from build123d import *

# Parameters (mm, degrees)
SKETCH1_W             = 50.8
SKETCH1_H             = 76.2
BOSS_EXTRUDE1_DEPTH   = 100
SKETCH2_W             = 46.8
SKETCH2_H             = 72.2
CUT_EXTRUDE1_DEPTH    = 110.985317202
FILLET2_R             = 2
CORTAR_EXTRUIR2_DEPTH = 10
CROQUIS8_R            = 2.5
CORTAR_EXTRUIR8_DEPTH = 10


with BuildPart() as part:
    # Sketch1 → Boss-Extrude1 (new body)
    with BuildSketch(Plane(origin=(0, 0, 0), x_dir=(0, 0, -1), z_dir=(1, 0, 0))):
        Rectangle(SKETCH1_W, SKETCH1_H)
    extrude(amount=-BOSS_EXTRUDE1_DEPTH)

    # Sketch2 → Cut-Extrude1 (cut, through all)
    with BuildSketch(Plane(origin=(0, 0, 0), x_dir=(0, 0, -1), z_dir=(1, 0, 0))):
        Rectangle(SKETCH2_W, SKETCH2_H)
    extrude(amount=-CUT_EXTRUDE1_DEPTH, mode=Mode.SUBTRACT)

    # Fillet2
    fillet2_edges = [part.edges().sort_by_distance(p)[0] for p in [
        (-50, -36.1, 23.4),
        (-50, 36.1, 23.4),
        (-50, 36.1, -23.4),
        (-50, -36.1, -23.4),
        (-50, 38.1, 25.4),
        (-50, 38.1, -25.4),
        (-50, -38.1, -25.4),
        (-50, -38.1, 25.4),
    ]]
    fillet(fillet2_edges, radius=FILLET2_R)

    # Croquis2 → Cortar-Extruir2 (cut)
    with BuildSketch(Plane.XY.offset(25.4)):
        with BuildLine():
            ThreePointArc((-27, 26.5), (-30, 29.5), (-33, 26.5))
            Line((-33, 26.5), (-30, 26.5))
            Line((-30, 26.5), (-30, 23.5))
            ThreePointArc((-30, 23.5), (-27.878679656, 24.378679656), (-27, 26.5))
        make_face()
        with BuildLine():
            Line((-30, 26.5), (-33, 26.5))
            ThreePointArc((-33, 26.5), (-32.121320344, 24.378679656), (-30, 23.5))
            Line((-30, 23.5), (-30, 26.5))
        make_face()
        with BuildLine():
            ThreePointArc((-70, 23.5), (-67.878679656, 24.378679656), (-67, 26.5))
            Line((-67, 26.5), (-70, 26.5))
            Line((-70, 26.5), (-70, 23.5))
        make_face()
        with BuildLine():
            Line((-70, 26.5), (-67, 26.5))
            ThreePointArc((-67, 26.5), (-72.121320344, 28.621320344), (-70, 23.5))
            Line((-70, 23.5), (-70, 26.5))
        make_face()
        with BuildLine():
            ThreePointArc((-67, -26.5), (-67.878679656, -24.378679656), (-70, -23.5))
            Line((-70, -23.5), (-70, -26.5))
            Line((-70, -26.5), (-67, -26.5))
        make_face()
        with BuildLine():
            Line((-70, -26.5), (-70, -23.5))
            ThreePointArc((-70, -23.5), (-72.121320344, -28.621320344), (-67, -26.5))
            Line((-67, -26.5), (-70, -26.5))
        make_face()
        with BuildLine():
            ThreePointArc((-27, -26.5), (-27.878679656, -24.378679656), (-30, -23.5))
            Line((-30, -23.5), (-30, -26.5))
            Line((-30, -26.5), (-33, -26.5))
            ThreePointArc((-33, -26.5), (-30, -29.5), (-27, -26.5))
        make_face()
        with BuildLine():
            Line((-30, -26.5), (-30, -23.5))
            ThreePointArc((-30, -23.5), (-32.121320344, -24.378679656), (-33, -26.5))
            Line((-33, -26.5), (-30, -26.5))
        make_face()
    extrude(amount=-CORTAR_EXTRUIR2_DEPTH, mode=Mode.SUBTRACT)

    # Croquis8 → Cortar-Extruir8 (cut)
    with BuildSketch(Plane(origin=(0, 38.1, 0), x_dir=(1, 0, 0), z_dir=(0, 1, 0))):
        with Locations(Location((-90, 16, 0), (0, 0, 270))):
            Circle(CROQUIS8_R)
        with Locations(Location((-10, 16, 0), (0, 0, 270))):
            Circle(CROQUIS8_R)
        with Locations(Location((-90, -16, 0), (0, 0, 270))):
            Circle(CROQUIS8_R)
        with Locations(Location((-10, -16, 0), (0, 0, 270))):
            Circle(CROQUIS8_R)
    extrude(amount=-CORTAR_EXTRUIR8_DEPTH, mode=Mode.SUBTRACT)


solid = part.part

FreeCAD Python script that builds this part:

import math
import FreeCAD as App
import Part
import Sketcher

V = App.Vector
Q = App.Units.Quantity


def edges_at(feature, points):
    """Names of the edges that pass closest to the given points."""
    edges = feature.Shape.Edges
    near = lambda p: min(range(len(edges)), key=lambda i: edges[i].distToShape(Part.Vertex(*p))[0])
    return sorted({f"Edge{near(p) + 1}" for p in points})


def add_polygon(sketch, points):
    """Adds a closed chain of lines whose ends are joined by coincident constraints."""
    first, n = sketch.GeometryCount, len(points)
    for a, b in zip(points, points[1:] + points[:1]):
        sketch.addGeometry(Part.LineSegment(App.Vector(*a, 0), App.Vector(*b, 0)), False)
    for i in range(n):
        sketch.addConstraint(Sketcher.Constraint("Coincident", first + i, 2, first + (i + 1) % n, 1))

doc = App.newDocument("Part")
body = doc.addObject("PartDesign::Body", "Body")

# Sketch on YZ plane
sketch1 = body.newObject("Sketcher::SketchObject", "Sketch")
sketch1.AttachmentSupport = (doc.getObject("YZ_Plane"), [""])
sketch1.MapMode = "FlatFace"
add_polygon(sketch1, [(38.1, 25.4), (-38.1, 25.4), (-38.1, -25.4), (38.1, -25.4)])  # lines 0-3
sketch1.addConstraint([
    Sketcher.Constraint("Horizontal", 0),
    Sketcher.Constraint("Vertical", 1),
    Sketcher.Constraint("Horizontal", 2),
    Sketcher.Constraint("Vertical", 3),
    Sketcher.Constraint("Symmetric", 0, 2, 2, 2, -1, 1),
    Sketcher.Constraint("DistanceX", 0, 2, 0, 1, Q("76.2 mm")),
    Sketcher.Constraint("DistanceY", 1, 2, 1, 1, Q("50.8 mm")),
])
pad1 = body.newObject("PartDesign::Pad", "Pad")
pad1.Profile = sketch1
pad1.Length = 100
pad1.Reversed = True

# Sketch on YZ plane
sketch2 = body.newObject("Sketcher::SketchObject", "Sketch001")
sketch2.AttachmentSupport = (doc.getObject("YZ_Plane"), [""])
sketch2.MapMode = "FlatFace"
add_polygon(sketch2, [(36.1, 23.4), (-36.1, 23.4), (-36.1, -23.4), (36.1, -23.4)])  # lines 0-3
sketch2.addConstraint([
    Sketcher.Constraint("Horizontal", 0),
    Sketcher.Constraint("Vertical", 1),
    Sketcher.Constraint("Horizontal", 2),
    Sketcher.Constraint("Vertical", 3),
    Sketcher.Constraint("Symmetric", 0, 2, 2, 2, -1, 1),
    Sketcher.Constraint("DistanceX", 0, 2, 0, 1, Q("72.2 mm")),
    Sketcher.Constraint("DistanceY", 1, 2, 1, 1, Q("46.8 mm")),
])
pocket1 = body.newObject("PartDesign::Pocket", "Pocket")
pocket1.Profile = sketch2
pocket1.Type = "ThroughAll"
doc.recompute()

fillet = body.newObject("PartDesign::Fillet", "Fillet")
fillet.Base = (pocket1, edges_at(pocket1, [
    (-50, -36.1, 23.4),
    (-50, 36.1, 23.4),
    (-50, 36.1, -23.4),
    (-50, -36.1, -23.4),
    (-50, 38.1, 25.4),
    (-50, 38.1, -25.4),
    (-50, -38.1, -25.4),
    (-50, -38.1, 25.4),
]))
fillet.Radius = 2

# Sketch on XY plane
sketch3 = body.newObject("Sketcher::SketchObject", "Sketch002")
sketch3.AttachmentSupport = (doc.getObject("XY_Plane"), [""])
sketch3.MapMode = "FlatFace"
sketch3.AttachmentOffset = App.Placement(V(0, 0, 25.4), App.Rotation())
sketch3.addGeometry([
    Part.ArcOfCircle(Part.Circle(V(-30, 26.5, 0), V(0, 0, 1), 3), math.radians(0), math.radians(180)),  # 0
    Part.ArcOfCircle(Part.Circle(V(-30, 26.5, 0), V(0, 0, 1), 3), math.radians(180), math.radians(270)),  # 1
    Part.ArcOfCircle(Part.Circle(V(-30, 26.5, 0), V(0, 0, 1), 3), math.radians(-90), math.radians(0)),  # 2
    Part.ArcOfCircle(Part.Circle(V(-70, 26.5, 0), V(0, 0, 1), 3), math.radians(-90), math.radians(0)),  # 3
    Part.ArcOfCircle(Part.Circle(V(-70, 26.5, 0), V(0, 0, 1), 3), math.radians(0), math.radians(270)),  # 4
    Part.ArcOfCircle(Part.Circle(V(-70, -26.5, 0), V(0, 0, 1), 3), math.radians(0), math.radians(90)),  # 5
    Part.ArcOfCircle(Part.Circle(V(-70, -26.5, 0), V(0, 0, 1), 3), math.radians(90), math.radians(360)),  # 6
    Part.ArcOfCircle(Part.Circle(V(-30, -26.5, 0), V(0, 0, 1), 3), math.radians(0), math.radians(90)),  # 7
    Part.ArcOfCircle(Part.Circle(V(-30, -26.5, 0), V(0, 0, 1), 3), math.radians(90), math.radians(180)),  # 8
    Part.ArcOfCircle(Part.Circle(V(-30, -26.5, 0), V(0, 0, 1), 3), math.radians(180), math.radians(360)),  # 9
], False)
sketch3.addConstraint([
    Sketcher.Constraint("Tangent", 0, 2, 1, 1),
    Sketcher.Constraint("Tangent", 1, 2, 2, 1),
    Sketcher.Constraint("Tangent", 2, 2, 0, 1),
    Sketcher.Constraint("Tangent", 3, 1, 4, 2),
    Sketcher.Constraint("Coincident", 4, 1, 3, 2),
    Sketcher.Constraint("Tangent", 5, 1, 6, 2),
    Sketcher.Constraint("Coincident", 6, 1, 5, 2),
    Sketcher.Constraint("Tangent", 7, 2, 8, 1),
    Sketcher.Constraint("Tangent", 8, 2, 9, 1),
    Sketcher.Constraint("Tangent", 9, 2, 7, 1),
    Sketcher.Constraint("Equal", 2, 3),
    Sketcher.Constraint("Equal", 4, 5),
    Sketcher.Constraint("Equal", 6, 7),
    Sketcher.Constraint("Symmetric", 3, 3, 5, 3, -1),
    Sketcher.Constraint("Symmetric", 0, 3, 7, 3, -1),
    Sketcher.Constraint("Horizontal", 2, 3, 3, 3),
    Sketcher.Constraint("Horizontal", 4, 3, 0, 2),
    Sketcher.Constraint("Horizontal", 0, 2, 2, 2),
    Sketcher.Constraint("Horizontal", 2, 2, 4, 1),
    Sketcher.Constraint("Horizontal", 9, 3, 5, 1),
    Sketcher.Constraint("Horizontal", 5, 1, 8, 2),
    Sketcher.Constraint("Horizontal", 8, 2, 9, 2),
    Sketcher.Constraint("Vertical", 9, 3, 1, 2),
    Sketcher.Constraint("Vertical", 6, 3, 3, 1),
    Sketcher.Constraint("Vertical", 3, 1, 6, 1),
    Sketcher.Constraint("Vertical", 1, 2, 7, 2),
    Sketcher.Constraint("Radius", 0, Q("3 mm")),
    Sketcher.Constraint("DistanceX", 0, 3, -1, 1, Q("30 mm")),
    Sketcher.Constraint("DistanceX", 3, 3, -1, 1, Q("70 mm")),
    Sketcher.Constraint("DistanceY", 5, 3, 3, 3, Q("53 mm")),
])
pocket2 = body.newObject("PartDesign::Pocket", "Pocket001")
pocket2.Profile = sketch3
pocket2.Length = 10

# Sketch on XZ plane
sketch4 = body.newObject("Sketcher::SketchObject", "Sketch003")
sketch4.AttachmentSupport = (doc.getObject("XZ_Plane"), [""])
sketch4.MapMode = "FlatFace"
sketch4.AttachmentOffset = App.Placement(V(0, 0, -38.1), App.Rotation())
sketch4.addGeometry([
    Part.Circle(V(-90, -16, 0), V(0, 0, 1), 2.5),
    Part.Circle(V(-10, -16, 0), V(0, 0, 1), 2.5),
    Part.Circle(V(-90, 16, 0), V(0, 0, 1), 2.5),
    Part.Circle(V(-10, 16, 0), V(0, 0, 1), 2.5),
], False)
sketch4.addConstraint([
    Sketcher.Constraint("Equal", 0, 1),
    Sketcher.Constraint("Equal", 1, 2),
    Sketcher.Constraint("Equal", 2, 3),
    Sketcher.Constraint("Symmetric", 0, 3, 2, 3, -1),
    Sketcher.Constraint("Symmetric", 1, 3, 3, 3, -1),
    Sketcher.Constraint("Horizontal", 0, 3, 1, 3),
    Sketcher.Constraint("Diameter", 0, Q("5 mm")),
    Sketcher.Constraint("DistanceX", 0, 3, -1, 1, Q("90 mm")),
    Sketcher.Constraint("DistanceY", 0, 3, -1, 1, Q("16 mm")),
    Sketcher.Constraint("DistanceX", 1, 3, -1, 1, Q("10 mm")),
])
pocket3 = body.newObject("PartDesign::Pocket", "Pocket002")
pocket3.Profile = sketch4
pocket3.Length = 10
pocket3.Reversed = True

doc.recompute()
